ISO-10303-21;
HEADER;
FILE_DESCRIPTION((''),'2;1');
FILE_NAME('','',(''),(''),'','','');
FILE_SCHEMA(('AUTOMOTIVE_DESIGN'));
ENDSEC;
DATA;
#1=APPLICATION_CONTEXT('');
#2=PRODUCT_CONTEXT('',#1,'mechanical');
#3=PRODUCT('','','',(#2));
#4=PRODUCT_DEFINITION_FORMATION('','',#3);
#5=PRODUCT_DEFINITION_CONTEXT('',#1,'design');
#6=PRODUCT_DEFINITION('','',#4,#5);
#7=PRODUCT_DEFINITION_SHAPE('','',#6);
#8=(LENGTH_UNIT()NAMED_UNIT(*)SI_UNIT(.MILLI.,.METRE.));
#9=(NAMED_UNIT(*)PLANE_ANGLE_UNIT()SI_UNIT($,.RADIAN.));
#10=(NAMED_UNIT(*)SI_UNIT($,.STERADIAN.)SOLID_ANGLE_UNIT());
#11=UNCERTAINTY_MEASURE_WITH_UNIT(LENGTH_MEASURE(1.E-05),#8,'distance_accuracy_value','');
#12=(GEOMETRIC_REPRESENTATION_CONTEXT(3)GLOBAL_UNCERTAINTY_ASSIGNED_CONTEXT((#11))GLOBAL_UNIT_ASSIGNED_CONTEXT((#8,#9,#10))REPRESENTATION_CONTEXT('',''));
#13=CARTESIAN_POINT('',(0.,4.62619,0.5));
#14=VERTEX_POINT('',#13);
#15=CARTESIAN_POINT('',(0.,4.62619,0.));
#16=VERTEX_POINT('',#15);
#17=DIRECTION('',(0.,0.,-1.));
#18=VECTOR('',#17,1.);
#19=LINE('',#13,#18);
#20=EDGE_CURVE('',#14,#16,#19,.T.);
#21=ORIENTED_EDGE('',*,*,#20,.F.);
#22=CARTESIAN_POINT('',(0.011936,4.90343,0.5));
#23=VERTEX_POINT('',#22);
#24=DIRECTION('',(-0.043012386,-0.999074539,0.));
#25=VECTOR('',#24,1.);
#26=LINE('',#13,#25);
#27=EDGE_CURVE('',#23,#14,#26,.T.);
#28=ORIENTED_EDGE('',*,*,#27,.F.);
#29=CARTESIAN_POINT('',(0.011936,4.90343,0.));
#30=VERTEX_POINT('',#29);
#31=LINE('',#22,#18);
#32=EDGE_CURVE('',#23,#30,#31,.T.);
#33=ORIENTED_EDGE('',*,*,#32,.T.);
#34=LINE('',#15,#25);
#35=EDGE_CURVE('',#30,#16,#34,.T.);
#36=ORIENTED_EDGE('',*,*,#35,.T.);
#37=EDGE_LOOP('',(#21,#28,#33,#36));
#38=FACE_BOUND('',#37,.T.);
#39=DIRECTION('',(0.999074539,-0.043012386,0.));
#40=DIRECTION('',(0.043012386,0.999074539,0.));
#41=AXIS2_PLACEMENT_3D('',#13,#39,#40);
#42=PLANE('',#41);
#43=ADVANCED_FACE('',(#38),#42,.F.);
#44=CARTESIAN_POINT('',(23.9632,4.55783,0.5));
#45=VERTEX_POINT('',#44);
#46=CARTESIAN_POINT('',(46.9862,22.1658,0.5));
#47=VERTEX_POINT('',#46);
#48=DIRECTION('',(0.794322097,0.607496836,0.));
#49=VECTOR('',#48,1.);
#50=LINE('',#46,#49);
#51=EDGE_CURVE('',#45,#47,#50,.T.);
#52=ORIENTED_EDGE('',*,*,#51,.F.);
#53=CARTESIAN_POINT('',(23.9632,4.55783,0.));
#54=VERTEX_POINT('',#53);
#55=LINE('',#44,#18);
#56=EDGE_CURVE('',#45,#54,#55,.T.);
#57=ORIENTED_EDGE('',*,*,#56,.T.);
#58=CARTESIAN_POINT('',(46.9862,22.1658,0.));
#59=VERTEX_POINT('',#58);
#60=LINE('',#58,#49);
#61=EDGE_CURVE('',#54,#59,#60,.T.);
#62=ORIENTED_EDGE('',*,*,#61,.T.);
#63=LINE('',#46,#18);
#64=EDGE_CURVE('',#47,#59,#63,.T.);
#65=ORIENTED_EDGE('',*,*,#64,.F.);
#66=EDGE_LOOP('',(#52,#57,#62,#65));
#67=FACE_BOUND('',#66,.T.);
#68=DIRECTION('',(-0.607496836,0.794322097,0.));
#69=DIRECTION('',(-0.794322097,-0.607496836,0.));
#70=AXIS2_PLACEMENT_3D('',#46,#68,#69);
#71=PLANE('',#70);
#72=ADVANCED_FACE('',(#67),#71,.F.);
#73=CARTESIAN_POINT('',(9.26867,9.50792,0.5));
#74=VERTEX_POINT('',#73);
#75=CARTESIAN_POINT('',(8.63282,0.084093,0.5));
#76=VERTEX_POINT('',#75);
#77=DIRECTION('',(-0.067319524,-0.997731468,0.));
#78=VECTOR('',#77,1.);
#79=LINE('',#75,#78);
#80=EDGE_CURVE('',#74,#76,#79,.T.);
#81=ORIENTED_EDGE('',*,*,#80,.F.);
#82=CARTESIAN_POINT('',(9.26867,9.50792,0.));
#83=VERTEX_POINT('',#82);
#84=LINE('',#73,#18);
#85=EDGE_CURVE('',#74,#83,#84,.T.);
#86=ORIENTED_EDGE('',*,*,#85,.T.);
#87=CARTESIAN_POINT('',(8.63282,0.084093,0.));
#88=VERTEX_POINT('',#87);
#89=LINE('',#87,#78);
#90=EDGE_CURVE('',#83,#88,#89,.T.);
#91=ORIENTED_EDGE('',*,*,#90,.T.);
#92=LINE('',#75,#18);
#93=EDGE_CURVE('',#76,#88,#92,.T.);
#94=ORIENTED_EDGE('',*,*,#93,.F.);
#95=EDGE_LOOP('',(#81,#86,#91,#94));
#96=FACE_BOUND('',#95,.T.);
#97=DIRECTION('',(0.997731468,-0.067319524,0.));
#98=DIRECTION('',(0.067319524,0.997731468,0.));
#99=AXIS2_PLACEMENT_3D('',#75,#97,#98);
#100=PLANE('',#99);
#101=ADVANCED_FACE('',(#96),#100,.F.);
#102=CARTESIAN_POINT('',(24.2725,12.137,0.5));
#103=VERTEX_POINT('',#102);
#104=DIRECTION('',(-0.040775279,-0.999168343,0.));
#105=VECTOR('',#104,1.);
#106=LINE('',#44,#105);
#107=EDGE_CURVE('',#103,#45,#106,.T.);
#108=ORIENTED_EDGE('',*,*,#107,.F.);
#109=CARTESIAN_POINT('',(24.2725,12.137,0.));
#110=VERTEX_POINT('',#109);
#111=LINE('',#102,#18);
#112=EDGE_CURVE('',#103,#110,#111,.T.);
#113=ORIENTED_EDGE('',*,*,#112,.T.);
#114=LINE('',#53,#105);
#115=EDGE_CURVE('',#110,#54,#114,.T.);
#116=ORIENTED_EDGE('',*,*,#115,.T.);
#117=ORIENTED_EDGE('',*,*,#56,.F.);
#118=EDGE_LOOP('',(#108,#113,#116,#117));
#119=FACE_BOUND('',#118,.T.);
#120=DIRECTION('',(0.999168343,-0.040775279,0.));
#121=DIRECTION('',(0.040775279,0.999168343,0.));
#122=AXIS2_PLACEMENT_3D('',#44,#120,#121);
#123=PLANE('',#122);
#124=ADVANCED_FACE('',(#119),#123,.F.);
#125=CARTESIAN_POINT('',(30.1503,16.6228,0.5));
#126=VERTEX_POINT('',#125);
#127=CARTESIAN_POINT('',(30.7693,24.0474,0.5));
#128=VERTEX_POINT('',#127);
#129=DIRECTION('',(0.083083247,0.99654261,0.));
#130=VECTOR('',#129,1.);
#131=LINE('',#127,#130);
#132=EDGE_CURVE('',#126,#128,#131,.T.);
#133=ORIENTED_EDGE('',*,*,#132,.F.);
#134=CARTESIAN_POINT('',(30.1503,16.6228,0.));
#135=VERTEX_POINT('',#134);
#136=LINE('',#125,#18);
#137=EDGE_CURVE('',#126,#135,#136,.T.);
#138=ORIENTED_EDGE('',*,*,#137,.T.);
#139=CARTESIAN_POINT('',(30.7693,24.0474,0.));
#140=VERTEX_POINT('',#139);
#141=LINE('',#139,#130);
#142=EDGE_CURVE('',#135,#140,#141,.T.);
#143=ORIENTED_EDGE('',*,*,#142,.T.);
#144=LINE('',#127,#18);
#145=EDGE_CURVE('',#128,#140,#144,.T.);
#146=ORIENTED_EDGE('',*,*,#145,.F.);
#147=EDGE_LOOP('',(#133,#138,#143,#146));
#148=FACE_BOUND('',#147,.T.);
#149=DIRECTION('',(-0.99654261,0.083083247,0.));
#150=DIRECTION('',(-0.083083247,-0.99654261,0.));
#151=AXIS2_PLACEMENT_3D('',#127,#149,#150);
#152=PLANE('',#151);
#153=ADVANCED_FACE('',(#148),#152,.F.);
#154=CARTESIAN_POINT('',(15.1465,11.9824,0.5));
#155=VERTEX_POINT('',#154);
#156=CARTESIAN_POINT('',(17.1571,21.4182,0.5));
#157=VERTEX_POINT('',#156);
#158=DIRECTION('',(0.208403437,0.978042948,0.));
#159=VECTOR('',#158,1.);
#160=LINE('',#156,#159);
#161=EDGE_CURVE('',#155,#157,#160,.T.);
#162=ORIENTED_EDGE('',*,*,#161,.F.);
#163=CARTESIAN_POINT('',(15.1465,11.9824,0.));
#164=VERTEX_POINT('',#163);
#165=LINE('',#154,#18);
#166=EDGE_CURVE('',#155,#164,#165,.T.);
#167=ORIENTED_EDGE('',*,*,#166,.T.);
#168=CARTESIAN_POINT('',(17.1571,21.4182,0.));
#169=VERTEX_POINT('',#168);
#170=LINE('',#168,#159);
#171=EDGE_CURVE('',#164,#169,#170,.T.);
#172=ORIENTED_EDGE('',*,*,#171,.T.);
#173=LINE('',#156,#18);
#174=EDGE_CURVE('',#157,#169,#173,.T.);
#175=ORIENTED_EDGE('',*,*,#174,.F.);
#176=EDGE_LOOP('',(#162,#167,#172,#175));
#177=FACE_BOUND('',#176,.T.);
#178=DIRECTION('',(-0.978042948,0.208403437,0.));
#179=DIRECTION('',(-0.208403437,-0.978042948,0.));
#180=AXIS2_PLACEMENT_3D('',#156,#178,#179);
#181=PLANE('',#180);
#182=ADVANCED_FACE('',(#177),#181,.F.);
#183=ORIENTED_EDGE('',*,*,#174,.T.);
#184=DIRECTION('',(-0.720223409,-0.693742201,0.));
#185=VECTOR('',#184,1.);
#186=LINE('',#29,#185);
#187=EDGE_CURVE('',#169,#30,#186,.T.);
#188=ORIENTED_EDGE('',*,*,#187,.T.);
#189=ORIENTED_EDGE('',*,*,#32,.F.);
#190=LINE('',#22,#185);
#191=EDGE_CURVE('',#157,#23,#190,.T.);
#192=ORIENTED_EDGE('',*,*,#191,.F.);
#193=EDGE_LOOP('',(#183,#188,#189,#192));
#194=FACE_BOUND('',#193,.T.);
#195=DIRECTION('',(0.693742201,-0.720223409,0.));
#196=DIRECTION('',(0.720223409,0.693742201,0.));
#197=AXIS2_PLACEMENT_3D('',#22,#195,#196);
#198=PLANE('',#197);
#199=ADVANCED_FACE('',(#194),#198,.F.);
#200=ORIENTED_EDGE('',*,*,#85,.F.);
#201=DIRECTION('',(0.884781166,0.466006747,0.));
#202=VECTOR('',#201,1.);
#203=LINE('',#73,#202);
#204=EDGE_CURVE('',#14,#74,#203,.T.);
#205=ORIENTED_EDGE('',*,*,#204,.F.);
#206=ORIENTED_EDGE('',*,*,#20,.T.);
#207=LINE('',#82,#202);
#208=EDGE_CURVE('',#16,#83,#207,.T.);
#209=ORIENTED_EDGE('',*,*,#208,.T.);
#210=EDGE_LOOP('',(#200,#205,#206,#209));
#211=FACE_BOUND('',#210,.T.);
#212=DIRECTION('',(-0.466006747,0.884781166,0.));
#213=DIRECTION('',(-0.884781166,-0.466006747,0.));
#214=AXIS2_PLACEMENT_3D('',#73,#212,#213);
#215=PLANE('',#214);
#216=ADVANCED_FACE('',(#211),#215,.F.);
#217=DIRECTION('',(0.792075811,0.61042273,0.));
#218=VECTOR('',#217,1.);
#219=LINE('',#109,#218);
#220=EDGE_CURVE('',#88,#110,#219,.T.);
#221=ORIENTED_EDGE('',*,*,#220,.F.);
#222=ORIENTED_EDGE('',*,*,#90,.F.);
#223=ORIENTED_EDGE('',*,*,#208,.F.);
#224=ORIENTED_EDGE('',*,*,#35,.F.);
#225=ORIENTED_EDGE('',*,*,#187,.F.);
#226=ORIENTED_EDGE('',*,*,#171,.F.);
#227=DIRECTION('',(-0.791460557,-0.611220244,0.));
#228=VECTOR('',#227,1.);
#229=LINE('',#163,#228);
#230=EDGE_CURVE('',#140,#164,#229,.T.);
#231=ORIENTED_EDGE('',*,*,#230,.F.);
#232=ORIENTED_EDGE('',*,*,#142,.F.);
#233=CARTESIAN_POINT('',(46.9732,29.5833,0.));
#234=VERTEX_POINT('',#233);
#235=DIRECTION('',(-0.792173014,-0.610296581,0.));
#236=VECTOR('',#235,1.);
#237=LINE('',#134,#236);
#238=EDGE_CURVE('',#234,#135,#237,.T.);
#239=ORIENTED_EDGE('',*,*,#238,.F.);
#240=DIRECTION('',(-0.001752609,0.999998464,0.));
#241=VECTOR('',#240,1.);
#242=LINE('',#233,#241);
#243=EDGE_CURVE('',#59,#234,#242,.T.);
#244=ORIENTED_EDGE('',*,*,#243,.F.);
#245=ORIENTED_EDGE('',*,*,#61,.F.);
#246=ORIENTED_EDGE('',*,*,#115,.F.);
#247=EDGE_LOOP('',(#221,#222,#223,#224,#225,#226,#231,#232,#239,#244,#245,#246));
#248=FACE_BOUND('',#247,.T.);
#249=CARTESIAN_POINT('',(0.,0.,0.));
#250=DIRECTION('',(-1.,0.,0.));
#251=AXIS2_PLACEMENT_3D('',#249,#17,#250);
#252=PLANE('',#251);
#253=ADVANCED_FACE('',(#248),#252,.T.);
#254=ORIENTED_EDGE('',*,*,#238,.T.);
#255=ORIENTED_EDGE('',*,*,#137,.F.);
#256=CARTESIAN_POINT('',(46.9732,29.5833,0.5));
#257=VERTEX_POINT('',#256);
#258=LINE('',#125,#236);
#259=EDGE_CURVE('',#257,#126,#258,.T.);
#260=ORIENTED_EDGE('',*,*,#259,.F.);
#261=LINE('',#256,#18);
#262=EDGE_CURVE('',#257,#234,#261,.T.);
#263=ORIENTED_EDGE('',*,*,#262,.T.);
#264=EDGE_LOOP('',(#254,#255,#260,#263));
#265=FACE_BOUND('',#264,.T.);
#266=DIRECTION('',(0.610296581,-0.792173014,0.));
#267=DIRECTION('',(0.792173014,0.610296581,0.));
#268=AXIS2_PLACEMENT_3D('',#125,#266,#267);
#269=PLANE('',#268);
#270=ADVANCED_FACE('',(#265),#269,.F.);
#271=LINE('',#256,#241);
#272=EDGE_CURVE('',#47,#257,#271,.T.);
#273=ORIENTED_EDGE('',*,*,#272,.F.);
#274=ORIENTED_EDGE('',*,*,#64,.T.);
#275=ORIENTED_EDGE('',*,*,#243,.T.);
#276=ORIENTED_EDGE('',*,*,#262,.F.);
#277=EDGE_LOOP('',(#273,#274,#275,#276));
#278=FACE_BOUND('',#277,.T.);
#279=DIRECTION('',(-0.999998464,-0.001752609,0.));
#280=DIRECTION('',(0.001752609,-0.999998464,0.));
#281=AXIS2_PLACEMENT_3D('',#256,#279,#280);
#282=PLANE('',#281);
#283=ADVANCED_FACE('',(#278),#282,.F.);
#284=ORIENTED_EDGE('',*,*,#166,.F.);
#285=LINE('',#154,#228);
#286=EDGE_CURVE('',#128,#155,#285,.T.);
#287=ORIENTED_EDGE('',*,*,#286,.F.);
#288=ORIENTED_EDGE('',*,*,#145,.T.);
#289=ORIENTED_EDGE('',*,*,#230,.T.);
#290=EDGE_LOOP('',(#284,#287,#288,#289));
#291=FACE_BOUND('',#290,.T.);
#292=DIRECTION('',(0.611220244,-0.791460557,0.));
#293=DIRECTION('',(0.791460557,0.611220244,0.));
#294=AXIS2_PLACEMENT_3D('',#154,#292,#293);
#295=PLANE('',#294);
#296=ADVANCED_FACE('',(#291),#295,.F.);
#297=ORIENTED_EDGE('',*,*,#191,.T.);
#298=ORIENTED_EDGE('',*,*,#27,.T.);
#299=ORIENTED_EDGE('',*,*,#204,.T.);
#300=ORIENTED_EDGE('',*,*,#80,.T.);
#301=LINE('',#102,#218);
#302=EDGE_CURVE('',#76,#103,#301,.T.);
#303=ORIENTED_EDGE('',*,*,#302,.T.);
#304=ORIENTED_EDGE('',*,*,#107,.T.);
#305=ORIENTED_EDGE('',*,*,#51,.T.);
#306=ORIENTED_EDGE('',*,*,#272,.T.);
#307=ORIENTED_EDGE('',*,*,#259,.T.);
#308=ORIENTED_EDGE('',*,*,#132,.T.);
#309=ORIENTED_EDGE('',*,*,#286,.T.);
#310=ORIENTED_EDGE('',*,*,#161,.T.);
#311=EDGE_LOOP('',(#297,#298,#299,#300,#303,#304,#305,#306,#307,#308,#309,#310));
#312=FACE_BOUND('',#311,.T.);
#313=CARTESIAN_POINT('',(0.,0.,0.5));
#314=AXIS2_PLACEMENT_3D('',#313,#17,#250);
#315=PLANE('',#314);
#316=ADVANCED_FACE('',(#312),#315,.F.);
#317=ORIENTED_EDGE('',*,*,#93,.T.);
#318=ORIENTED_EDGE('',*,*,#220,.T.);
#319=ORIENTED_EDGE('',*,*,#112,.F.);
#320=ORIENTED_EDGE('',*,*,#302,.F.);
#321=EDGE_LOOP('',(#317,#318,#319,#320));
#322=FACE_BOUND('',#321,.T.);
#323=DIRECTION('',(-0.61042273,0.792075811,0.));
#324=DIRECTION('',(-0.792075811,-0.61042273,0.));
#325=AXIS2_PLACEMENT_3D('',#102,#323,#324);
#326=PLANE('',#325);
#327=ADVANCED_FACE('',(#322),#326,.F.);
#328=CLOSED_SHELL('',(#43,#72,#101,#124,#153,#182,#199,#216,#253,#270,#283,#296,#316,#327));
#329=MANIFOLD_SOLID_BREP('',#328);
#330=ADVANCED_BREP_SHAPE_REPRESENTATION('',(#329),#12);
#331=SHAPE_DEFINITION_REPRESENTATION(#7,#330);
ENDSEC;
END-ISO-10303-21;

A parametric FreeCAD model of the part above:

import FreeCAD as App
import Part
import Sketcher

V = App.Vector


def add_polygon(sketch, points):
    """Adds a closed chain of lines whose ends are joined by coincident constraints."""
    first, n = sketch.GeometryCount, len(points)
    for a, b in zip(points, points[1:] + points[:1]):
        sketch.addGeometry(Part.LineSegment(App.Vector(*a, 0), App.Vector(*b, 0)), False)
    for i in range(n):
        sketch.addConstraint(Sketcher.Constraint("Coincident", first + i, 2, first + (i + 1) % n, 1))

doc = App.newDocument("Part")
body = doc.addObject("PartDesign::Body", "Body")

# Sketch on XY plane
sketch1 = body.newObject("Sketcher::SketchObject", "Sketch")
sketch1.AttachmentSupport = (doc.getObject("XY_Plane"), [""])
sketch1.MapMode = "FlatFace"
add_polygon(sketch1, [(23.9632, 4.55783), (46.9862, 22.1658), (46.9732, 29.5833), (30.1503, 16.6228), (30.7693, 24.0474), (15.1465, 11.9824), (17.1571, 21.4182), (0.011936, 4.90343), (0, 4.62619), (9.26867, 9.50792), (8.63282, 0.084093), (24.2725, 12.137)])  # lines 0-11
sketch1.addConstraint([
    Sketcher.Constraint("PointOnObject", 7, 2, -2),
    Sketcher.Constraint("DistanceY", -1, 1, 10, 2, 12.137),
    Sketcher.Constraint("DistanceX", 1, 2, 0, 2, 0.013),
    Sketcher.Constraint("DistanceY", 2, 2, 0, 2, 5.543),
    Sketcher.Constraint("DistanceX", 2, 2, 3, 2, 0.619),
    Sketcher.Constraint("DistanceY", 4, 2, 3, 2, 12.065),
    Sketcher.Constraint("DistanceX", 4, 2, 10, 2, 9.126),
    Sketcher.Constraint("DistanceX", -1, 1, 0, 2, 46.9862),
    Sketcher.Constraint("DistanceY", -1, 1, 0, 2, 22.1658),
    Sketcher.Constraint("DistanceY", -1, 1, 1, 2, 29.5833),
    Sketcher.Constraint("DistanceX", -1, 1, 2, 2, 30.1503),
    Sketcher.Constraint("DistanceY", -1, 1, 3, 2, 24.0474),
    Sketcher.Constraint("DistanceX", -1, 1, 4, 2, 15.1465),
    Sketcher.Constraint("DistanceX", -1, 1, 5, 2, 17.1571),
    Sketcher.Constraint("DistanceY", -1, 1, 5, 2, 21.4182),
    Sketcher.Constraint("DistanceX", -1, 1, 11, 2, 23.9632),
    Sketcher.Constraint("Distance", 6, 23.805341),
    Sketcher.Constraint("Distance", 10, 19.745181),
    Sketcher.Constraint("Distance", 11, 7.585479),
    Sketcher.Constraint("DistanceY", -1, 1, 6, 2, 4.90343),
    Sketcher.Constraint("DistanceY", -1, 1, 7, 2, 4.62619),
    Sketcher.Constraint("DistanceX", -1, 1, 8, 2, 9.26867),
    Sketcher.Constraint("DistanceY", -1, 1, 8, 2, 9.50792),
    Sketcher.Constraint("DistanceX", -1, 1, 9, 2, 8.63282),
])
pad1 = body.newObject("PartDesign::Pad", "Pad")
pad1.Profile = sketch1
pad1.Length = 0.5

doc.recompute()
